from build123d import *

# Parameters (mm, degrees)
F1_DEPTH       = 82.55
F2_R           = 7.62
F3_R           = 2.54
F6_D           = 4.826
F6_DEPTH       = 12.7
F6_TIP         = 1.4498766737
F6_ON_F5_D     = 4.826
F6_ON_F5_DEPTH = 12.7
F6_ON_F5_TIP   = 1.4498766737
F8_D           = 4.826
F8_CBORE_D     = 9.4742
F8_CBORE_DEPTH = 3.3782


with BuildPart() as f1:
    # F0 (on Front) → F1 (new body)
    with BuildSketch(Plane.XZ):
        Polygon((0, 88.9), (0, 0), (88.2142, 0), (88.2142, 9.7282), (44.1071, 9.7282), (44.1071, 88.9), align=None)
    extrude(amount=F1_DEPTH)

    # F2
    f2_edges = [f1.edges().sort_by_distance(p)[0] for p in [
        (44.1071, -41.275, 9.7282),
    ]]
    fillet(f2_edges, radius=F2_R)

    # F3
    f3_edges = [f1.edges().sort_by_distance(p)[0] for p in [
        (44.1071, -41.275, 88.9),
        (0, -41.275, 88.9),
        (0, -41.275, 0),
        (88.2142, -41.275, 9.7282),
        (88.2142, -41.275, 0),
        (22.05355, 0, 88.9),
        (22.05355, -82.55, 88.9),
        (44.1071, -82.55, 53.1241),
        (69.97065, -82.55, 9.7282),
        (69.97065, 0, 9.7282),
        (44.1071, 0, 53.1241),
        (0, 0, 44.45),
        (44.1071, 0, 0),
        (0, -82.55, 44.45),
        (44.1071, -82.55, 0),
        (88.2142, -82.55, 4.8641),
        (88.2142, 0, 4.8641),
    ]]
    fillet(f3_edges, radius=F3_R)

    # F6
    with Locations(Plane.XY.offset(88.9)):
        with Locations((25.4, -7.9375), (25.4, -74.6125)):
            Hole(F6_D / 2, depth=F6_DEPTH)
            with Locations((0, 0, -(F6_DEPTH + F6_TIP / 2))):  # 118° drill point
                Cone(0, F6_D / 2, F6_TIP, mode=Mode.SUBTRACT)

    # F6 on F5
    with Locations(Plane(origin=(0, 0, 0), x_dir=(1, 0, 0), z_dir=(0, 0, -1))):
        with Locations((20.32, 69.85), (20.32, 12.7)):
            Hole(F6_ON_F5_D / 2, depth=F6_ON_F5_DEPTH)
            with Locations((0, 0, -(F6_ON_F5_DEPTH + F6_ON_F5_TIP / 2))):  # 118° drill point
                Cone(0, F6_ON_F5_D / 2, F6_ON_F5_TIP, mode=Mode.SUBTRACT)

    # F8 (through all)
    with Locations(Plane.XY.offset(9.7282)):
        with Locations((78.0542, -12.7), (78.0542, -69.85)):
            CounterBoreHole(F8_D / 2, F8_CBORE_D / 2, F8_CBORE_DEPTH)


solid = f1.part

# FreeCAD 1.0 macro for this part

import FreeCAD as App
import Part
import Sketcher

V = App.Vector
Q = App.Units.Quantity


def edges_at(feature, points):
    """Names of the edges that pass closest to the given points."""
    edges = feature.Shape.Edges
    near = lambda p: min(range(len(edges)), key=lambda i: edges[i].distToShape(Part.Vertex(*p))[0])
    return sorted({f"Edge{near(p) + 1}" for p in points})

doc = App.newDocument("Part")
body = doc.addObject("PartDesign::Body", "Body")

# Sketch on XZ plane
sketch1 = doc.addObject("Sketcher::SketchObject", "Sketch")
body.addObject(sketch1)
sketch1.AttachmentSupport = (doc.XZ_Plane, [""])
sketch1.MapMode = "FlatFace"
sketch1.addGeometry(Part.LineSegment(V(0, 89, 0), V(0, 0, 0)), False)
sketch1.addGeometry(Part.LineSegment(V(0, 0, 0), V(88, 0, 0)), False)
sketch1.addGeometry(Part.LineSegment(V(88, 0, 0), V(88, 10, 0)), False)
sketch1.addGeometry(Part.LineSegment(V(88, 10, 0), V(44, 10, 0)), False)
sketch1.addGeometry(Part.LineSegment(V(44, 10, 0), V(44, 89, 0)), False)
sketch1.addGeometry(Part.LineSegment(V(44, 89, 0), V(0, 89, 0)), False)
sketch1.addConstraint(Sketcher.Constraint("Coincident", 0, 2, 1, 1))
sketch1.addConstraint(Sketcher.Constraint("Coincident", 1, 2, 2, 1))
sketch1.addConstraint(Sketcher.Constraint("Coincident", 2, 2, 3, 1))
sketch1.addConstraint(Sketcher.Constraint("Coincident", 3, 2, 4, 1))
sketch1.addConstraint(Sketcher.Constraint("Coincident", 4, 2, 5, 1))
sketch1.addConstraint(Sketcher.Constraint("Coincident", 5, 2, 0, 1))
sketch1.addConstraint(Sketcher.Constraint("Vertical", 0))
sketch1.addConstraint(Sketcher.Constraint("Horizontal", 1))
sketch1.addConstraint(Sketcher.Constraint("Vertical", 2))
sketch1.addConstraint(Sketcher.Constraint("Horizontal", 3))
sketch1.addConstraint(Sketcher.Constraint("Vertical", 4))
sketch1.addConstraint(Sketcher.Constraint("Horizontal", 5))
sketch1.addConstraint(Sketcher.Constraint("Coincident", 0, 2, -1, 1))
sketch1.addConstraint(Sketcher.Constraint("Equal", 3, 5))
sketch1.addConstraint(Sketcher.Constraint("DistanceY", 0, 2, 0, 1, Q("3.5 in")))
sketch1.addConstraint(Sketcher.Constraint("DistanceX", 1, 1, 1, 2, Q("3.473 in")))
sketch1.addConstraint(Sketcher.Constraint("DistanceY", 2, 1, 2, 2, Q("0.383 in")))
pad1 = doc.addObject("PartDesign::Pad", "Pad")
body.addObject(pad1)
pad1.Profile = sketch1
pad1.Length = Q("3.25 in")
doc.recompute()

fillet = doc.addObject("PartDesign::Fillet", "Fillet")
body.addObject(fillet)
fillet.Base = (pad1, edges_at(pad1, [(44.107, -41.275, 9.728)]))
fillet.Radius = Q("0.3 in")
doc.recompute()

fillet2 = doc.addObject("PartDesign::Fillet", "Fillet001")
body.addObject(fillet2)
fillet2.Base = (fillet, ["Edge1"])
fillet2.UseAllEdges = True
fillet2.Radius = Q("0.1 in")

# Sketch on XY plane
sketch2 = doc.addObject("Sketcher::SketchObject", "Sketch001")
body.addObject(sketch2)
sketch2.AttachmentSupport = (doc.XY_Plane, [""])
sketch2.MapMode = "FlatFace"
sketch2.AttachmentOffset = App.Placement(V(0, 0, 3.5 * 25.4), App.Rotation())
sketch2.addGeometry(Part.Circle(V(25.4, -7.9, 0), V(0, 0, 1), 2.4), False)
sketch2.addGeometry(Part.Circle(V(25.4, -74.6, 0), V(0, 0, 1), 2.4), False)
sketch2.addConstraint(Sketcher.Constraint("Equal", 0, 1))
sketch2.addConstraint(Sketcher.Constraint("Vertical", 0, 3, 1, 3))
sketch2.addConstraint(Sketcher.Constraint("Diameter", 0, Q("0.19 in")))
sketch2.addConstraint(Sketcher.Constraint("DistanceX", -1, 1, 0, 3, Q("1 in")))
sketch2.addConstraint(Sketcher.Constraint("DistanceY", 0, 3, -1, 1, Q("0.3125 in")))
sketch2.addConstraint(Sketcher.Constraint("DistanceY", 1, 3, -1, 1, Q("2.9375 in")))
doc.recompute()
hole = doc.addObject("PartDesign::Hole", "Hole")
body.addObject(hole)
hole.Profile = sketch2
hole.ThreadType = "None"
hole.Diameter = Q("0.19 in")
hole.DepthType = "Dimension"
hole.Depth = Q("0.5 in")
hole.DrillPoint = "Angled"
hole.DrillPointAngle = 118

# Sketch on XY plane
sketch3 = doc.addObject("Sketcher::SketchObject", "Sketch002")
body.addObject(sketch3)
sketch3.AttachmentSupport = (doc.XY_Plane, [""])
sketch3.MapMode = "FlatFace"
sketch3.addGeometry(Part.Circle(V(20.3, -69.8, 0), V(0, 0, 1), 2.4), False)
sketch3.addGeometry(Part.Circle(V(20.3, -12.7, 0), V(0, 0, 1), 2.4), False)
sketch3.addConstraint(Sketcher.Constraint("Equal", 0, 1))
sketch3.addConstraint(Sketcher.Constraint("Vertical", 0, 3, 1, 3))
sketch3.addConstraint(Sketcher.Constraint("Diameter", 0, Q("0.19 in")))
sketch3.addConstraint(Sketcher.Constraint("DistanceX", -1, 1, 0, 3, Q("0.8 in")))
sketch3.addConstraint(Sketcher.Constraint("DistanceY", 1, 3, -1, 1, Q("0.5 in")))
sketch3.addConstraint(Sketcher.Constraint("DistanceY", 0, 3, -1, 1, Q("2.75 in")))
doc.recompute()
hole2 = doc.addObject("PartDesign::Hole", "Hole001")
body.addObject(hole2)
hole2.Profile = sketch3
hole2.ThreadType = "None"
hole2.Diameter = Q("0.19 in")
hole2.DepthType = "Dimension"
hole2.Depth = Q("0.5 in")
hole2.DrillPoint = "Angled"
hole2.DrillPointAngle = 118
hole2.Reversed = True

# Sketch on XY plane
sketch4 = doc.addObject("Sketcher::SketchObject", "Sketch003")
body.addObject(sketch4)
sketch4.AttachmentSupport = (doc.XY_Plane, [""])
sketch4.MapMode = "FlatFace"
sketch4.AttachmentOffset = App.Placement(V(0, 0, 0.383 * 25.4), App.Rotation())
sketch4.addGeometry(Part.Circle(V(78.1, -12.7, 0), V(0, 0, 1), 2.4), False)
sketch4.addGeometry(Part.Circle(V(78.1, -69.8, 0), V(0, 0, 1), 2.4), False)
sketch4.addConstraint(Sketcher.Constraint("Equal", 0, 1))
sketch4.addConstraint(Sketcher.Constraint("Vertical", 0, 3, 1, 3))
sketch4.addConstraint(Sketcher.Constraint("Diameter", 0, Q("0.19 in")))
sketch4.addConstraint(Sketcher.Constraint("DistanceY", 0, 3, -1, 1, Q("0.5 in")))
sketch4.addConstraint(Sketcher.Constraint("DistanceY", 1, 3, -1, 1, Q("2.75 in")))
sketch4.addConstraint(Sketcher.Constraint("DistanceX", -1, 1, 0, 3, Q("3.073 in")))
doc.recompute()
hole3 = doc.addObject("PartDesign::Hole", "Hole002")
body.addObject(hole3)
hole3.Profile = sketch4
hole3.ThreadType = "None"
hole3.Diameter = Q("0.19 in")
hole3.DepthType = "ThroughAll"
hole3.HoleCutType = "Counterbore"
hole3.HoleCutDiameter = Q("0.373 in")
hole3.HoleCutDepth = Q("0.133 in")

doc.recompute()
